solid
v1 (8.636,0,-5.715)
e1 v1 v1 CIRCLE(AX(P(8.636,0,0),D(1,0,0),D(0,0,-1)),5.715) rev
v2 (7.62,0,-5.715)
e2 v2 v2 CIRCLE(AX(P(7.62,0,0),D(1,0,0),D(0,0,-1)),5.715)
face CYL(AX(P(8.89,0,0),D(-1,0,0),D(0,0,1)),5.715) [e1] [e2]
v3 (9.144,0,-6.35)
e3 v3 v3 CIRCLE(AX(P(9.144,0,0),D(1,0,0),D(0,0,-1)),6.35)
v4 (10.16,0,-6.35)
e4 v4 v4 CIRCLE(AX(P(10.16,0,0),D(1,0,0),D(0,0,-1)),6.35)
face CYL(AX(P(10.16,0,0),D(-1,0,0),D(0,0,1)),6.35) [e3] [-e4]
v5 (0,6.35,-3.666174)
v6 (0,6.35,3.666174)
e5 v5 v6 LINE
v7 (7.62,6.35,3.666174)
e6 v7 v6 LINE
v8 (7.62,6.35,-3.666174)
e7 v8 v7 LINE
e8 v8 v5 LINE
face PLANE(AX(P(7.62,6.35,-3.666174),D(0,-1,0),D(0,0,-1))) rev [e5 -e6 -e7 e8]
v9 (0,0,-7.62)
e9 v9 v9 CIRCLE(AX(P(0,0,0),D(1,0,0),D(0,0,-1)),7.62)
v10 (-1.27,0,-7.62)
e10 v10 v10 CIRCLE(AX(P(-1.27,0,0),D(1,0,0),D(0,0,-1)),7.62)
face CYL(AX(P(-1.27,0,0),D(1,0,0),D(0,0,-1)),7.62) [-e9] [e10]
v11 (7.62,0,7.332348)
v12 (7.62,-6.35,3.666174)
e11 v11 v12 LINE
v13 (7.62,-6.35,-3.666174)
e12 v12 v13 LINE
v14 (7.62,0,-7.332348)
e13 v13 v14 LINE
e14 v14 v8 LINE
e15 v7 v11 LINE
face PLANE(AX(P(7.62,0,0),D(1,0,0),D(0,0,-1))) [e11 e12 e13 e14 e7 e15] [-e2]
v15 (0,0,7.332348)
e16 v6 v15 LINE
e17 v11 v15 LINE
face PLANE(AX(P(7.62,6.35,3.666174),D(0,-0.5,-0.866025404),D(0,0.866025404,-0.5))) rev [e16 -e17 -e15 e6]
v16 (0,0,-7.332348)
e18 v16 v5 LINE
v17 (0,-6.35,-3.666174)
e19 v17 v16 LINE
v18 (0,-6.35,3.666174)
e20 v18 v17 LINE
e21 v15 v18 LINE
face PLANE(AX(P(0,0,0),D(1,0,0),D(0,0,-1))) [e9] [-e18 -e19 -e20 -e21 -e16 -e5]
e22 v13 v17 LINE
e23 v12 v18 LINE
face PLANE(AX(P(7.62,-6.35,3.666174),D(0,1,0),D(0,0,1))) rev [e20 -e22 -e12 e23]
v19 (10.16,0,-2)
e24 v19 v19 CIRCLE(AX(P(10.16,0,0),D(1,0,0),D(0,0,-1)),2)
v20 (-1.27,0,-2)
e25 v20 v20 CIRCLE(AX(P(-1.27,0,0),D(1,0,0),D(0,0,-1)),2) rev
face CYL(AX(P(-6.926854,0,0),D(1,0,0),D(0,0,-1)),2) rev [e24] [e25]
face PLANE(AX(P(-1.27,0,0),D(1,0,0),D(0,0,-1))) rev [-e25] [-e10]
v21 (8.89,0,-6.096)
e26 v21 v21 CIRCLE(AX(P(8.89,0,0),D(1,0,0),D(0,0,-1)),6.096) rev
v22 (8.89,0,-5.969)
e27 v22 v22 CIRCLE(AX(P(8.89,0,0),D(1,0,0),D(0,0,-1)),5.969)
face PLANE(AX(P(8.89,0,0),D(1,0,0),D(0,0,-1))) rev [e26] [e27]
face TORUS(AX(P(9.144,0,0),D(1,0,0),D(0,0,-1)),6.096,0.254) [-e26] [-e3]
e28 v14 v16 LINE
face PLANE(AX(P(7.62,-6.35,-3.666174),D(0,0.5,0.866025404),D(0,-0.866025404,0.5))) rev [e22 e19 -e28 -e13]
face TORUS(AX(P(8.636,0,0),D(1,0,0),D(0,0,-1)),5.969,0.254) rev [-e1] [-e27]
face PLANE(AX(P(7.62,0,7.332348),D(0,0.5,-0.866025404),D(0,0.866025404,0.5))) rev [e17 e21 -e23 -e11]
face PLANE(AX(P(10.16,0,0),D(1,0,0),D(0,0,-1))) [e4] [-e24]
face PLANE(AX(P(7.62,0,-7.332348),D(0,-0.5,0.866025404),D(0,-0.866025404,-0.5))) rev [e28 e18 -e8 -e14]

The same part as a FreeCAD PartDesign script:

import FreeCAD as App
import Part
import Sketcher
from FreeCAD import Vector
Q = App.Units.Quantity


def edges_at(feature, points):
    """Names of the edges that pass closest to the given points."""
    edges = feature.Shape.Edges
    near = lambda p: min(range(len(edges)), key=lambda i: edges[i].distToShape(Part.Vertex(*p))[0])
    return sorted({f"Edge{near(p) + 1}" for p in points})

doc = App.newDocument("Part")
body = doc.addObject("PartDesign::Body", "Body")

# Sketch on YZ plane
sketch1 = doc.addObject("Sketcher::SketchObject", "Sketch")
body.addObject(sketch1)
sketch1.AttachmentSupport = (doc.YZ_Plane, [""])
sketch1.MapMode = "FlatFace"
sketch1.addGeometry(Part.Circle(Vector(0, 0, 0), Vector(0, 0, 1), 7.62), False)
sketch1.addConstraint(Sketcher.Constraint("Coincident", 0, 3, -1, 1))
sketch1.addConstraint(Sketcher.Constraint("Diameter", 0, Q("0.6 in")))
pad1 = doc.addObject("PartDesign::Pad", "Pad")
body.addObject(pad1)
pad1.Profile = sketch1
pad1.Length = Q("0.05 in")
pad1.Reversed = True

# Sketch on YZ plane
sketch2 = doc.addObject("Sketcher::SketchObject", "Sketch001")
body.addObject(sketch2)
sketch2.AttachmentSupport = (doc.YZ_Plane, [""])
sketch2.MapMode = "FlatFace"
sketch2.addGeometry(Part.LineSegment(Vector(6.35, 3.666174, 0), Vector(0, 7.332348, 0)), False)
sketch2.addGeometry(Part.LineSegment(Vector(0, 7.332348, 0), Vector(-6.35, 3.666174, 0)), False)
sketch2.addGeometry(Part.LineSegment(Vector(-6.35, 3.666174, 0), Vector(-6.35, -3.666174, 0)), False)
sketch2.addGeometry(Part.LineSegment(Vector(-6.35, -3.666174, 0), Vector(0, -7.332348, 0)), False)
sketch2.addGeometry(Part.LineSegment(Vector(0, -7.332348, 0), Vector(6.35, -3.666174, 0)), False)
sketch2.addGeometry(Part.LineSegment(Vector(6.35, -3.666174, 0), Vector(6.35, 3.666174, 0)), False)
sketch2.addConstraint(Sketcher.Constraint("Coincident", 0, 2, 1, 1))
sketch2.addConstraint(Sketcher.Constraint("Coincident", 1, 2, 2, 1))
sketch2.addConstraint(Sketcher.Constraint("Coincident", 2, 2, 3, 1))
sketch2.addConstraint(Sketcher.Constraint("Coincident", 3, 2, 4, 1))
sketch2.addConstraint(Sketcher.Constraint("Coincident", 4, 2, 5, 1))
sketch2.addConstraint(Sketcher.Constraint("Coincident", 5, 2, 0, 1))
sketch2.addConstraint(Sketcher.Constraint("Vertical", 2))
sketch2.addConstraint(Sketcher.Constraint("Vertical", 5))
sketch2.addConstraint(Sketcher.Constraint("Symmetric", 0, 2, 3, 2, -1, 1))
sketch2.addConstraint(Sketcher.Constraint("Symmetric", 1, 2, 4, 2, -1, 1))
sketch2.addConstraint(Sketcher.Constraint("PointOnObject", 0, 2, -2))
sketch2.addConstraint(Sketcher.Constraint("Parallel", 0, 3))
sketch2.addConstraint(Sketcher.Constraint("Horizontal", 2, 2, 4, 2))
sketch2.addConstraint(Sketcher.Constraint("Angle", 0, Q("150 deg")))
sketch2.addConstraint(Sketcher.Constraint("DistanceX", 2, 2, 4, 2, Q("0.5 in")))
sketch2.addConstraint(Sketcher.Constraint("DistanceY", 2, 2, 2, 1, Q("7.332348 mm")))
pad2 = doc.addObject("PartDesign::Pad", "Pad001")
body.addObject(pad2)
pad2.Profile = sketch2
pad2.Length = Q("0.3 in")

# Sketch on YZ plane
sketch3 = doc.addObject("Sketcher::SketchObject", "Sketch002")
body.addObject(sketch3)
sketch3.AttachmentSupport = (doc.YZ_Plane, [""])
sketch3.MapMode = "FlatFace"
sketch3.AttachmentOffset = App.Placement(Vector(0, 0, 0.3 * 25.4), App.Rotation())
sketch3.addGeometry(Part.Circle(Vector(0, 0, 0), Vector(0, 0, 1), 5.715), False)
sketch3.addConstraint(Sketcher.Constraint("Coincident", 0, 3, -1, 1))
sketch3.addConstraint(Sketcher.Constraint("Diameter", 0, Q("0.45 in")))
pad3 = doc.addObject("PartDesign::Pad", "Pad002")
body.addObject(pad3)
pad3.Profile = sketch3
pad3.Length = Q("0.05 in")

# Sketch on YZ plane
sketch4 = doc.addObject("Sketcher::SketchObject", "Sketch003")
body.addObject(sketch4)
sketch4.AttachmentSupport = (doc.YZ_Plane, [""])
sketch4.MapMode = "FlatFace"
sketch4.AttachmentOffset = App.Placement(Vector(0, 0, 0.35 * 25.4), App.Rotation())
sketch4.addGeometry(Part.Circle(Vector(0, 0, 0), Vector(0, 0, 1), 6.35), False)
sketch4.addConstraint(Sketcher.Constraint("Coincident", 0, 3, -1, 1))
sketch4.addConstraint(Sketcher.Constraint("Diameter", 0, Q("0.5 in")))
pad4 = doc.addObject("PartDesign::Pad", "Pad003")
body.addObject(pad4)
pad4.Profile = sketch4
pad4.Length = Q("0.05 in")
doc.recompute()

fillet = doc.addObject("PartDesign::Fillet", "Fillet")
body.addObject(fillet)
fillet.Base = (pad4, edges_at(pad4, [(8.89, 0, 5.715), (8.89, 0, 6.35)]))
fillet.Radius = Q("0.01 in")

# Sketch on YZ plane
sketch5 = doc.addObject("Sketcher::SketchObject", "Sketch004")
body.addObject(sketch5)
sketch5.AttachmentSupport = (doc.YZ_Plane, [""])
sketch5.MapMode = "FlatFace"
sketch5.AttachmentOffset = App.Placement(Vector(0, 0, 0.4 * 25.4), App.Rotation())
sketch5.addGeometry(Part.Circle(Vector(0, 0, 0), Vector(0, 0, 1), 2), False)
sketch5.addConstraint(Sketcher.Constraint("Coincident", 0, 3, -1, 1))
sketch5.addConstraint(Sketcher.Constraint("Diameter", 0, Q("4 mm")))
pocket1 = doc.addObject("PartDesign::Pocket", "Pocket")
body.addObject(pocket1)
pocket1.Profile = sketch5
pocket1.Length = Q("0.45 in")

doc.recompute()
